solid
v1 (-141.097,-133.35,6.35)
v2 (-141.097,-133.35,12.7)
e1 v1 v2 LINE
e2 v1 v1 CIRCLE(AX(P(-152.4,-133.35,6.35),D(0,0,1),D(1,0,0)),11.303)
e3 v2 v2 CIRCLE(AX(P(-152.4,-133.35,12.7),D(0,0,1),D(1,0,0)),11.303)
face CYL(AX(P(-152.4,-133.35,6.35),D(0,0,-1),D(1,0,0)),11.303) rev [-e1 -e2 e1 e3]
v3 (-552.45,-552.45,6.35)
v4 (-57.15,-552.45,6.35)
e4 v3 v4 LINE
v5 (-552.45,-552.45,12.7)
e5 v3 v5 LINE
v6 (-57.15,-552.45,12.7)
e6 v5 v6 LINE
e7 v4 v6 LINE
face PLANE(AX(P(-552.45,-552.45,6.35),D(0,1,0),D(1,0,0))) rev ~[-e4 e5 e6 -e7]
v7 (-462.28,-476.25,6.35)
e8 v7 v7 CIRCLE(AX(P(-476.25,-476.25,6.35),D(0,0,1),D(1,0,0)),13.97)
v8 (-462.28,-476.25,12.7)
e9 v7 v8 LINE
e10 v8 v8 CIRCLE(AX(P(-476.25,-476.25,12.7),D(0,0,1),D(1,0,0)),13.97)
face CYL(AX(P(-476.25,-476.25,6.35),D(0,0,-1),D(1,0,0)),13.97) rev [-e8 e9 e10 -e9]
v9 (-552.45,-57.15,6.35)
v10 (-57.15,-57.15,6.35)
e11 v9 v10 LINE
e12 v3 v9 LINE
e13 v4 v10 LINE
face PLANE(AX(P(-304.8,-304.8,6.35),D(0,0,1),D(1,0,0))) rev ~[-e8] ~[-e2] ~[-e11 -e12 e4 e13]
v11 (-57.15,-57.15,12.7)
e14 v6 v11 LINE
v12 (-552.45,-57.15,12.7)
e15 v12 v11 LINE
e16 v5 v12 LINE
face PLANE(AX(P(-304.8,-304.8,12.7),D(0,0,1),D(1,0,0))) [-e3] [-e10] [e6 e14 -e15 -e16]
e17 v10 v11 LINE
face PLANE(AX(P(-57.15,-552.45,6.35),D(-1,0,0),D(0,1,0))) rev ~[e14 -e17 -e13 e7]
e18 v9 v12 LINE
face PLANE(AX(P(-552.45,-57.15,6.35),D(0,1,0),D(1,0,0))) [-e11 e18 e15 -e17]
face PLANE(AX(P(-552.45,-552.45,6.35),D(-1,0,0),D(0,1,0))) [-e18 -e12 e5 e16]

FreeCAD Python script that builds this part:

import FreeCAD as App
import Part
import Sketcher

V = App.Vector
Q = App.Units.Quantity

doc = App.newDocument("Part")
body = doc.addObject("PartDesign::Body", "Body")

# Sketch on XY plane
sketch1 = body.newObject("Sketcher::SketchObject", "Sketch")
sketch1.AttachmentSupport = (doc.getObject("XY_Plane"), [""])
sketch1.MapMode = "FlatFace"
sketch1.AttachmentOffset = App.Placement(V(0, 0, 0.25 * 25.4), App.Rotation())
sketch1.addGeometry([
    Part.LineSegment(V(-552, -57, 0), V(-552, -552, 0)),  # 0
    Part.LineSegment(V(-552, -552, 0), V(-57, -552, 0)),  # 1
    Part.LineSegment(V(-57, -552, 0), V(-57, -57, 0)),  # 2
    Part.LineSegment(V(-57, -57, 0), V(-552, -57, 0)),  # 3
    Part.Circle(V(-476, -476, 0), V(0, 0, 1), 14),  # 4
    Part.Circle(V(-152, -133, 0), V(0, 0, 1), 11),  # 5
], False)
sketch1.addConstraint([
    Sketcher.Constraint("Coincident", 0, 2, 1, 1),
    Sketcher.Constraint("Coincident", 1, 2, 2, 1),
    Sketcher.Constraint("Coincident", 2, 2, 3, 1),
    Sketcher.Constraint("Coincident", 3, 2, 0, 1),
    Sketcher.Constraint("Vertical", 0),
    Sketcher.Constraint("Horizontal", 1),
    Sketcher.Constraint("Vertical", 2),
    Sketcher.Constraint("Horizontal", 3),
    Sketcher.Constraint("Equal", 3, 0),
    Sketcher.Constraint("Diameter", 4, Q("1.1 in")),
    Sketcher.Constraint("Diameter", 5, Q("0.89 in")),
    Sketcher.Constraint("DistanceX", 1, 1, 1, 2, Q("19.5 in")),
    Sketcher.Constraint("DistanceX", 5, 3, -1, 1, Q("6 in")),
    Sketcher.Constraint("DistanceX", 0, 2, 4, 3, Q("3 in")),
    Sketcher.Constraint("DistanceY", 0, 2, 4, 3, Q("3 in")),
    Sketcher.Constraint("DistanceY", 5, 3, 2, 2, Q("3 in")),
    Sketcher.Constraint("DistanceX", 4, 3, -1, 1, Q("18.75 in")),
    Sketcher.Constraint("DistanceY", 4, 3, -1, 1, Q("18.75 in")),
])
pad1 = body.newObject("PartDesign::Pad", "Pad")
pad1.Profile = sketch1
pad1.Length = Q("0.25 in")

doc.recompute()
